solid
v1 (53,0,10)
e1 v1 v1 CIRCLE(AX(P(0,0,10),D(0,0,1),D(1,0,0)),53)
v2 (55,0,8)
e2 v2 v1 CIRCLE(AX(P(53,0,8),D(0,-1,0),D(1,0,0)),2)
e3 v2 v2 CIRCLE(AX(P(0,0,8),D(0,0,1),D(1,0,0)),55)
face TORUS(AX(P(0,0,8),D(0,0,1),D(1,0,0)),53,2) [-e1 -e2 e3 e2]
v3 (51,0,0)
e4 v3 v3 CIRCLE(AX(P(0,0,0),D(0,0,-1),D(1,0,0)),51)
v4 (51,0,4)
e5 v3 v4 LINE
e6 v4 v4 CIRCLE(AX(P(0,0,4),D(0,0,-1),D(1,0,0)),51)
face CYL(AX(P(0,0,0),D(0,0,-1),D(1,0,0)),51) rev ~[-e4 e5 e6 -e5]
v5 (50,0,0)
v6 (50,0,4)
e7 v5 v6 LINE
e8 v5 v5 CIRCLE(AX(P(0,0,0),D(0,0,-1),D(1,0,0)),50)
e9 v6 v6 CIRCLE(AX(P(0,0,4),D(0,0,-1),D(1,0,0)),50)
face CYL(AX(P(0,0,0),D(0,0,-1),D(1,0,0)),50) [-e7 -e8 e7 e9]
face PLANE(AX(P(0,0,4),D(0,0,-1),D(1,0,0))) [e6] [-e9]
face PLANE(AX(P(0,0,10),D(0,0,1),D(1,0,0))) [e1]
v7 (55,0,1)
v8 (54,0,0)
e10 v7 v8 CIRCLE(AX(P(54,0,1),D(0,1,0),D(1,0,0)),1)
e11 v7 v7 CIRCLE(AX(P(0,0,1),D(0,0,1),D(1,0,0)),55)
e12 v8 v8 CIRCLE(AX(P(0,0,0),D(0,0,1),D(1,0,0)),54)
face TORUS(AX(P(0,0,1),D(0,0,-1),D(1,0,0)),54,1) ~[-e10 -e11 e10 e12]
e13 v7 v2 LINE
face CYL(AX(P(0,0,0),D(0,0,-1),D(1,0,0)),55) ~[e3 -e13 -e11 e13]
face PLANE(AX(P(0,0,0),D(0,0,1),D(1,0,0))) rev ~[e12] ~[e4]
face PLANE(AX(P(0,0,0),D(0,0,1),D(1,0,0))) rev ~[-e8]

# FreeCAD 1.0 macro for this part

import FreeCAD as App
import Part
import Sketcher
from FreeCAD import Vector
Q = App.Units.Quantity


def edges_at(feature, points):
    """Names of the edges that pass closest to the given points."""
    edges = feature.Shape.Edges
    near = lambda p: min(range(len(edges)), key=lambda i: edges[i].distToShape(Part.Vertex(*p))[0])
    return sorted({f"Edge{near(p) + 1}" for p in points})

doc = App.newDocument("Part")
body = doc.addObject("PartDesign::Body", "Body")

# Sketch on XY plane
sketch1 = body.newObject("Sketcher::SketchObject", "Sketch")
sketch1.AttachmentSupport = (doc.getObject("XY_Plane"), [""])
sketch1.MapMode = "FlatFace"
sketch1.addGeometry(Part.Circle(Vector(0, 0, 0), Vector(0, 0, 1), 55), False)
sketch1.addConstraint([
    Sketcher.Constraint("Coincident", 0, 3, -1, 1),
    Sketcher.Constraint("Diameter", 0, Q("110 mm")),
])
pad1 = body.newObject("PartDesign::Pad", "Pad")
pad1.Profile = sketch1
pad1.Length = 10
doc.recompute()

fillet = body.newObject("PartDesign::Fillet", "Fillet")
fillet.Base = (pad1, edges_at(pad1, [(-55, 0, 0)]))
fillet.Radius = 1

# Sketch on XY plane
sketch2 = body.newObject("Sketcher::SketchObject", "Sketch001")
sketch2.AttachmentSupport = (doc.getObject("XY_Plane"), [""])
sketch2.MapMode = "FlatFace"
sketch2.addGeometry([
    Part.Circle(Vector(0, 0, 0), Vector(0, 0, 1), 51),
    Part.Circle(Vector(0, 0, 0), Vector(0, 0, 1), 50),
], False)
sketch2.addConstraint([
    Sketcher.Constraint("Coincident", 0, 3, -1, 1),
    Sketcher.Constraint("Coincident", 1, 3, -1, 1),
    Sketcher.Constraint("Diameter", 0, Q("102 mm")),
    Sketcher.Constraint("Diameter", 1, Q("100 mm")),
])
pocket1 = body.newObject("PartDesign::Pocket", "Pocket")
pocket1.Profile = sketch2
pocket1.Length = 4
pocket1.Reversed = True
doc.recompute()

fillet2 = body.newObject("PartDesign::Fillet", "Fillet001")
fillet2.Base = (pocket1, edges_at(pocket1, [(-55, 0, 10)]))
fillet2.Radius = 2

doc.recompute()
